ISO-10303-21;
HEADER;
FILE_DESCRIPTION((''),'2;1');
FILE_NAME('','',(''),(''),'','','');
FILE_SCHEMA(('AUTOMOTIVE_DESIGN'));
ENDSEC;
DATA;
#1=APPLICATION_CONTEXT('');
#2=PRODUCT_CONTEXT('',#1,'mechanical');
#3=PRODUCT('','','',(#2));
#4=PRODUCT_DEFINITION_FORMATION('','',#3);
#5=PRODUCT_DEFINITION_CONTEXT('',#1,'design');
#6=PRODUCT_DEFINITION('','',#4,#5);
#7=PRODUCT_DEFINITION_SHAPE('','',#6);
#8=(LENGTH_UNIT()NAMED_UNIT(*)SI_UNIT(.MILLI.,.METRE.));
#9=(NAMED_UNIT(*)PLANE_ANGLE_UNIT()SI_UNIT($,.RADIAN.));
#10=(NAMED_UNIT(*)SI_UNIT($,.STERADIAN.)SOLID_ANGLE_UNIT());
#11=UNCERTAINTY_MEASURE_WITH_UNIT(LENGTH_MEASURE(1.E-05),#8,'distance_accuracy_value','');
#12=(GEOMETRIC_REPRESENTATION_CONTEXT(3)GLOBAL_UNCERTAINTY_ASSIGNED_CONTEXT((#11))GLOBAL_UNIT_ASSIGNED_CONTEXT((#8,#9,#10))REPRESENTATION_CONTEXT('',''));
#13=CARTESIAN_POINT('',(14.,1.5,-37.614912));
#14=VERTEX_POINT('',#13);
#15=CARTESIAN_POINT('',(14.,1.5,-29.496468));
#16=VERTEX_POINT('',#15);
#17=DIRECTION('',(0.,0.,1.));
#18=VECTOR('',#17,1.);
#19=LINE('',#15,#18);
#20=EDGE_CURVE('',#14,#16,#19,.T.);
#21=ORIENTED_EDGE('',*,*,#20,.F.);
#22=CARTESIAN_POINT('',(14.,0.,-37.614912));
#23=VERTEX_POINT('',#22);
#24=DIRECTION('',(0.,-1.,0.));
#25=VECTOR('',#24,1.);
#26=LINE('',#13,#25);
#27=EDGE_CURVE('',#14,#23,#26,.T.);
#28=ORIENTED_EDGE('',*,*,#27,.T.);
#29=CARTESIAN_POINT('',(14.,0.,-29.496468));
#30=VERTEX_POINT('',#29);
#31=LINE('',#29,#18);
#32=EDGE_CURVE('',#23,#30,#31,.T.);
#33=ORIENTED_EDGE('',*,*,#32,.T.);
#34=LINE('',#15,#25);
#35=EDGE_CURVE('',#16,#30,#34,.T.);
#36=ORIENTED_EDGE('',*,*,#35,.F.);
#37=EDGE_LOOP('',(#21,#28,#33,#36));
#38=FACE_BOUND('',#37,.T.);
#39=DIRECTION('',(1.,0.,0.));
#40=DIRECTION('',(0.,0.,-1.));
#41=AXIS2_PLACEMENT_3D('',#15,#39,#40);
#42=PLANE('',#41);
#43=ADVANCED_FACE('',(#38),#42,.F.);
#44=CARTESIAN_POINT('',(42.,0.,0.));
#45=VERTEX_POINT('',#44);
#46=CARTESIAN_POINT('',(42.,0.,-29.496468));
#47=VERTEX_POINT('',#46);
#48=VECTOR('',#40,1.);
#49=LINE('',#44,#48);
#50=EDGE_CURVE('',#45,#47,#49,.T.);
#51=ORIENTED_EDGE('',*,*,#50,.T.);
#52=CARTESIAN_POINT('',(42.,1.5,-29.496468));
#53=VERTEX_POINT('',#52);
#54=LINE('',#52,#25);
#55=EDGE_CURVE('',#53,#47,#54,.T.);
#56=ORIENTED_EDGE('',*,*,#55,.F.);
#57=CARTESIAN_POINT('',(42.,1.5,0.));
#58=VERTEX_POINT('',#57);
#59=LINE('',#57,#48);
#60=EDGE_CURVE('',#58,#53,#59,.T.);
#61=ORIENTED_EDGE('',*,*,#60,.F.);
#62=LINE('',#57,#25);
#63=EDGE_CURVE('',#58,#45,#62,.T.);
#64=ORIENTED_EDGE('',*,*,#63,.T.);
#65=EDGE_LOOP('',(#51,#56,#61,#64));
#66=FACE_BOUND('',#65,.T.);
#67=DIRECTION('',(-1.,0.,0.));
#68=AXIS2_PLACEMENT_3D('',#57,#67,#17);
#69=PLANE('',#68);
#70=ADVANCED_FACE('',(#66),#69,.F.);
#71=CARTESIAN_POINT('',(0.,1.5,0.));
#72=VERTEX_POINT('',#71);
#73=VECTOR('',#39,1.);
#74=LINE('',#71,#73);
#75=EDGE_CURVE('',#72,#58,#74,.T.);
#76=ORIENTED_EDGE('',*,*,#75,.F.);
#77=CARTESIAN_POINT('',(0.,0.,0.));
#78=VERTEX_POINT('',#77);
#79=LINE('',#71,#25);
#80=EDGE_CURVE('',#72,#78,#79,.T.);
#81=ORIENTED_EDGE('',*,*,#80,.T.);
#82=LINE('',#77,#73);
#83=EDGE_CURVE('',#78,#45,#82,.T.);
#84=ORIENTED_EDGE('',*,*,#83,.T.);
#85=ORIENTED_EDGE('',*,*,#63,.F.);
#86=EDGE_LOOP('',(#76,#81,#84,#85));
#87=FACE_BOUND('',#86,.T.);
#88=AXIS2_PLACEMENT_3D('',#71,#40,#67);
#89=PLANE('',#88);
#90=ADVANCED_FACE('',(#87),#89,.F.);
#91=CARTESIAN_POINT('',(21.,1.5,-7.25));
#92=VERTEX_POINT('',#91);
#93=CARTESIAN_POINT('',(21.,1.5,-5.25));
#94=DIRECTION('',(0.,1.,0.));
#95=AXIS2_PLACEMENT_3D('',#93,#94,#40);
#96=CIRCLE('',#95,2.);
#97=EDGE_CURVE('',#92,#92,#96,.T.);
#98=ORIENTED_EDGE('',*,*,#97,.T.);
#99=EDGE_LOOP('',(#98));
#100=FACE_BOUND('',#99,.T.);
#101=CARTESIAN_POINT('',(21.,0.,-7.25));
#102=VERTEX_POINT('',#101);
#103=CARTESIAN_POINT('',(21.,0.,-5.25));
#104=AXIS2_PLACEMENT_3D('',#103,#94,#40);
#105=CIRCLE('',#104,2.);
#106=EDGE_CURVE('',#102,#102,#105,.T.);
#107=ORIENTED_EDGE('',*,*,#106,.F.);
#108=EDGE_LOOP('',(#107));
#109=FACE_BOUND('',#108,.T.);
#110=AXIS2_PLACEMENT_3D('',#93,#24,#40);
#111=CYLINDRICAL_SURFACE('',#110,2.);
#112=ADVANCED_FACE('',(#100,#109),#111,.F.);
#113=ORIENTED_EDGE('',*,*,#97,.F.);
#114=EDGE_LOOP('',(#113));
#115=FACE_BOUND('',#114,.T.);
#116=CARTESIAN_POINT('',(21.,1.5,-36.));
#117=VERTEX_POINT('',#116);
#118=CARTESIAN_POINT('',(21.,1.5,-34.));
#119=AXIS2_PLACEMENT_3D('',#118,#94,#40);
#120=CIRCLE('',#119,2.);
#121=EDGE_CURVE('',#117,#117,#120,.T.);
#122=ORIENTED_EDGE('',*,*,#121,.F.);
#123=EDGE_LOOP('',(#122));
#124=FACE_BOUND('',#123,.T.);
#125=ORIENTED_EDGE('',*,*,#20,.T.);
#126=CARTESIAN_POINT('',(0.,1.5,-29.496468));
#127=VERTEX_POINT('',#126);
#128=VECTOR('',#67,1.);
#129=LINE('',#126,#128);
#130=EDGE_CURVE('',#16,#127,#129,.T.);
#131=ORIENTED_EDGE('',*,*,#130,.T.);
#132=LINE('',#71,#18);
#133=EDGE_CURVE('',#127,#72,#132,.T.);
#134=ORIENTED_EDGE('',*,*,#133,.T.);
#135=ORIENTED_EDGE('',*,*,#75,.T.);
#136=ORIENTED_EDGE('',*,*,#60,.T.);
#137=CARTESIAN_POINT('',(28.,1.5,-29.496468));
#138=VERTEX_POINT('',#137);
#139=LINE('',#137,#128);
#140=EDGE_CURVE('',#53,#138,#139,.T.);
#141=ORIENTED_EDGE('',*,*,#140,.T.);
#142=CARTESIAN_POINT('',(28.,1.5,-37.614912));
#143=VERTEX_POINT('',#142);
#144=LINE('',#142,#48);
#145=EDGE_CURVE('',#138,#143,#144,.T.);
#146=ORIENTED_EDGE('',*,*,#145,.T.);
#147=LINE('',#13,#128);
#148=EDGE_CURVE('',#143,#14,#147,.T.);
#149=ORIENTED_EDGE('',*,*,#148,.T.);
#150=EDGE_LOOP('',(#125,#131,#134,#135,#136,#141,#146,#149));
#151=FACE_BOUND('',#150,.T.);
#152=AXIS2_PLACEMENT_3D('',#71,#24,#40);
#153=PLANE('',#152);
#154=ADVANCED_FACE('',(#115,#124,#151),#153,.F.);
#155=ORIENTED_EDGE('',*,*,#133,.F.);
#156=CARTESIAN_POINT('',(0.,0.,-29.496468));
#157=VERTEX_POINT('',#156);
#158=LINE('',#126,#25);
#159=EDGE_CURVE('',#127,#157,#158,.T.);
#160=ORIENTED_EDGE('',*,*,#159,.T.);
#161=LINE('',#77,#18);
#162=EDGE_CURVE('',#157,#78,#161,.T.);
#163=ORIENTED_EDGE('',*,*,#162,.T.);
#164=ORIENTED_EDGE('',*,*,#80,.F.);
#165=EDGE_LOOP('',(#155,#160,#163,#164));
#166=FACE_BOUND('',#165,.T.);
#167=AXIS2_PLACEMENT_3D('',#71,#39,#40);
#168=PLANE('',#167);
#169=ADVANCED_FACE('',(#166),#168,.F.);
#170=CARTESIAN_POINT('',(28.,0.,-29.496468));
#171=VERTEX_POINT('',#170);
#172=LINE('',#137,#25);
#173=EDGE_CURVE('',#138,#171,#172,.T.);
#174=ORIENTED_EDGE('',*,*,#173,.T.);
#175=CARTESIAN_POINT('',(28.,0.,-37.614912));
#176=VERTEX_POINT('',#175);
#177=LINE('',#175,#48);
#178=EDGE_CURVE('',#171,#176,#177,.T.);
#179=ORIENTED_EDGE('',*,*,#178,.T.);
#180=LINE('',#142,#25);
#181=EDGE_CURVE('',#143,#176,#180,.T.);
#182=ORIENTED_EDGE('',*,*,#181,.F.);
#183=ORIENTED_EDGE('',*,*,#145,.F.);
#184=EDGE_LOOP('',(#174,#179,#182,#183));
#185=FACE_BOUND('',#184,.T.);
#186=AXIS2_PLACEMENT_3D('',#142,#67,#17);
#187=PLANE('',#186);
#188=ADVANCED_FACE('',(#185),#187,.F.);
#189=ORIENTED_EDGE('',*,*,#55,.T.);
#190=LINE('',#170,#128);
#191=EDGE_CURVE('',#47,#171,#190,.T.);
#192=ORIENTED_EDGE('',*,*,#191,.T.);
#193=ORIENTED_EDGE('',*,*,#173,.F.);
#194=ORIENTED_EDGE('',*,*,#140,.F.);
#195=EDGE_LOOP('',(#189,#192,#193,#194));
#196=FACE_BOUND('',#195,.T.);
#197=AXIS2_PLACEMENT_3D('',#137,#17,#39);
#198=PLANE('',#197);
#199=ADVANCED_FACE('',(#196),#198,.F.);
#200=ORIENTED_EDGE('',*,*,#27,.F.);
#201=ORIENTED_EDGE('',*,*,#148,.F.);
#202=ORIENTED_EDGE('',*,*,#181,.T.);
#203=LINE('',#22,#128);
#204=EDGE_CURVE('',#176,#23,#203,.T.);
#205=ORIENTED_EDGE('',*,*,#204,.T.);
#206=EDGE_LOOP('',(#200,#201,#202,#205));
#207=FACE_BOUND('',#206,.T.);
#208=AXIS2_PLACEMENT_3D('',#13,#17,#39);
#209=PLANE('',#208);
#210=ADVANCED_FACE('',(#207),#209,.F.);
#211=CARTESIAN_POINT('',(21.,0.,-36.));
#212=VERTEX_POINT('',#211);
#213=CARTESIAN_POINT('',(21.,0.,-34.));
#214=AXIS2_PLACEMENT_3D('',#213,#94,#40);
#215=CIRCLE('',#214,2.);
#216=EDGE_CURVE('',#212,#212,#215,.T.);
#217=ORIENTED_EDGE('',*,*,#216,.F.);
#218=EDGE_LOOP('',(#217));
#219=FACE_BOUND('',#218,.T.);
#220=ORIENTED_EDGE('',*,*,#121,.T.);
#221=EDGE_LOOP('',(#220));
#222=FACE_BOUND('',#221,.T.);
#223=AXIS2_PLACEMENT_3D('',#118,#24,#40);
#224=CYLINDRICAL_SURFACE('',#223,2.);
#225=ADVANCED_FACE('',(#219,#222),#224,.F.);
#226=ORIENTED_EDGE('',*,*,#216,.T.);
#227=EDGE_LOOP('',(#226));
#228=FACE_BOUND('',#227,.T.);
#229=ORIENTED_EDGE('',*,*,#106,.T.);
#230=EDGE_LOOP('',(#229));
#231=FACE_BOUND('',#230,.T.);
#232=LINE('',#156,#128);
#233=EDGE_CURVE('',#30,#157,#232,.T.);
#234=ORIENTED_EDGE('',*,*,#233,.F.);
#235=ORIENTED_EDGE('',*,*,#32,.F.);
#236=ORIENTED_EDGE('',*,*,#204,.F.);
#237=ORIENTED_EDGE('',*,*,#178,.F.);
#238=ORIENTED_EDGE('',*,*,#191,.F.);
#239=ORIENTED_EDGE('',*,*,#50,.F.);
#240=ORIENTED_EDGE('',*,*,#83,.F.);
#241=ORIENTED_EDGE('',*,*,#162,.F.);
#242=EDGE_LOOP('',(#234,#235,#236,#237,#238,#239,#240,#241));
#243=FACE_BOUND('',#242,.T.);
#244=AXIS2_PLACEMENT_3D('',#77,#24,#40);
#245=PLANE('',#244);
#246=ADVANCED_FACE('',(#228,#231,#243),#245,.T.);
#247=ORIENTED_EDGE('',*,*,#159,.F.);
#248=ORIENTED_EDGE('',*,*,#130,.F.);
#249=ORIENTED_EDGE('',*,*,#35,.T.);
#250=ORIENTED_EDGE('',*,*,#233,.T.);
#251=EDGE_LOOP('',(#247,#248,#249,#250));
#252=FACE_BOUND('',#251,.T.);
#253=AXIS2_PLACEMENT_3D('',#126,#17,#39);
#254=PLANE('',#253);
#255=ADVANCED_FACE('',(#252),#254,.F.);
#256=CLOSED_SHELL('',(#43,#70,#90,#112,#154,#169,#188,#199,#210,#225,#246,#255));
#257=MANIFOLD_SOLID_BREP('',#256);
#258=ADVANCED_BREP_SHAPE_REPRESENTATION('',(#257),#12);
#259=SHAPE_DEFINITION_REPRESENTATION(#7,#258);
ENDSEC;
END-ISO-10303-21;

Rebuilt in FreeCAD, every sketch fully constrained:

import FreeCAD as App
import Part
import Sketcher

V = App.Vector
Q = App.Units.Quantity


def add_polygon(sketch, points):
    """Adds a closed chain of lines whose ends are joined by coincident constraints."""
    first, n = sketch.GeometryCount, len(points)
    for a, b in zip(points, points[1:] + points[:1]):
        sketch.addGeometry(Part.LineSegment(App.Vector(*a, 0), App.Vector(*b, 0)), False)
    for i in range(n):
        sketch.addConstraint(Sketcher.Constraint("Coincident", first + i, 2, first + (i + 1) % n, 1))

doc = App.newDocument("Part")
params = doc.addObject("Spreadsheet::Sheet", "Params")
for row, (alias, value) in enumerate([
    ("sketch1_diameter", "4 mm"),
    ("sketch1_width", "14 mm"),
    ("pad1_length", "1.5 mm"),
], start=1):
    params.set(f"A{row}", alias)
    params.set(f"B{row}", "=" + value)
    params.setAlias(f"B{row}", alias)

body = doc.addObject("PartDesign::Body", "Body")

# Sketch on XZ plane
sketch1 = body.newObject("Sketcher::SketchObject", "Sketch")
sketch1.AttachmentSupport = (doc.getObject("XZ_Plane"), [""])
sketch1.MapMode = "FlatFace"
add_polygon(sketch1, [(14, -29.5), (0, -29.5), (0, 0), (42, 0), (42, -29.5), (28, -29.5), (28, -37.6), (14, -37.6)])  # lines 0-7
sketch1.addGeometry(Part.Circle(V(21, -5.2, 0), V(0, 0, 1), 2), False)  # 8
sketch1.addGeometry(Part.Circle(V(21, -34, 0), V(0, 0, 1), 2), False)  # 9
sketch1.addConstraint(Sketcher.Constraint("Horizontal", 0))
sketch1.addConstraint(Sketcher.Constraint("Vertical", 1))
sketch1.addConstraint(Sketcher.Constraint("Horizontal", 2))
sketch1.addConstraint(Sketcher.Constraint("Vertical", 3))
sketch1.addConstraint(Sketcher.Constraint("Horizontal", 4))
sketch1.addConstraint(Sketcher.Constraint("Vertical", 5))
sketch1.addConstraint(Sketcher.Constraint("Horizontal", 6))
sketch1.addConstraint(Sketcher.Constraint("Vertical", 7))
sketch1.addConstraint(Sketcher.Constraint("Coincident", 1, 2, -1, 1))
sketch1.addConstraint(Sketcher.Constraint("Equal", 8, 9))
sketch1.addConstraint(Sketcher.Constraint("Horizontal", 0, 2, 3, 2))
sketch1.addConstraint(Sketcher.Constraint("Vertical", 8, 3, 9, 3))
sketch1.addConstraint(Sketcher.Constraint("Equal", 0, 4))
sketch1.addConstraint(Sketcher.Constraint("Equal", 4, 6))
sketch1.addConstraint(Sketcher.Constraint("Diameter", 8, Q("4 mm")))
sketch1.addConstraint(Sketcher.Constraint("DistanceX", 0, 2, 0, 1, Q("14 mm")))
sketch1.addConstraint(Sketcher.Constraint("DistanceX", -1, 1, 8, 3, Q("21 mm")))
sketch1.addConstraint(Sketcher.Constraint("DistanceY", 9, 3, -1, 1, Q("34 mm")))
sketch1.addConstraint(Sketcher.Constraint("DistanceY", 8, 3, -1, 1, Q("5.25 mm")))
sketch1.addConstraint(Sketcher.Constraint("DistanceY", 1, 1, 1, 2, Q("29.496468 mm")))
sketch1.addConstraint(Sketcher.Constraint("DistanceY", 5, 2, 5, 1, Q("8.118444 mm")))
sketch1.setExpression("Constraints[22]", "Params.sketch1_diameter")
sketch1.setExpression("Constraints[23]", "Params.sketch1_width")
pad1 = body.newObject("PartDesign::Pad", "Pad")
pad1.Profile = sketch1
pad1.setExpression("Length", "Params.pad1_length")
pad1.Reversed = True

doc.recompute()
